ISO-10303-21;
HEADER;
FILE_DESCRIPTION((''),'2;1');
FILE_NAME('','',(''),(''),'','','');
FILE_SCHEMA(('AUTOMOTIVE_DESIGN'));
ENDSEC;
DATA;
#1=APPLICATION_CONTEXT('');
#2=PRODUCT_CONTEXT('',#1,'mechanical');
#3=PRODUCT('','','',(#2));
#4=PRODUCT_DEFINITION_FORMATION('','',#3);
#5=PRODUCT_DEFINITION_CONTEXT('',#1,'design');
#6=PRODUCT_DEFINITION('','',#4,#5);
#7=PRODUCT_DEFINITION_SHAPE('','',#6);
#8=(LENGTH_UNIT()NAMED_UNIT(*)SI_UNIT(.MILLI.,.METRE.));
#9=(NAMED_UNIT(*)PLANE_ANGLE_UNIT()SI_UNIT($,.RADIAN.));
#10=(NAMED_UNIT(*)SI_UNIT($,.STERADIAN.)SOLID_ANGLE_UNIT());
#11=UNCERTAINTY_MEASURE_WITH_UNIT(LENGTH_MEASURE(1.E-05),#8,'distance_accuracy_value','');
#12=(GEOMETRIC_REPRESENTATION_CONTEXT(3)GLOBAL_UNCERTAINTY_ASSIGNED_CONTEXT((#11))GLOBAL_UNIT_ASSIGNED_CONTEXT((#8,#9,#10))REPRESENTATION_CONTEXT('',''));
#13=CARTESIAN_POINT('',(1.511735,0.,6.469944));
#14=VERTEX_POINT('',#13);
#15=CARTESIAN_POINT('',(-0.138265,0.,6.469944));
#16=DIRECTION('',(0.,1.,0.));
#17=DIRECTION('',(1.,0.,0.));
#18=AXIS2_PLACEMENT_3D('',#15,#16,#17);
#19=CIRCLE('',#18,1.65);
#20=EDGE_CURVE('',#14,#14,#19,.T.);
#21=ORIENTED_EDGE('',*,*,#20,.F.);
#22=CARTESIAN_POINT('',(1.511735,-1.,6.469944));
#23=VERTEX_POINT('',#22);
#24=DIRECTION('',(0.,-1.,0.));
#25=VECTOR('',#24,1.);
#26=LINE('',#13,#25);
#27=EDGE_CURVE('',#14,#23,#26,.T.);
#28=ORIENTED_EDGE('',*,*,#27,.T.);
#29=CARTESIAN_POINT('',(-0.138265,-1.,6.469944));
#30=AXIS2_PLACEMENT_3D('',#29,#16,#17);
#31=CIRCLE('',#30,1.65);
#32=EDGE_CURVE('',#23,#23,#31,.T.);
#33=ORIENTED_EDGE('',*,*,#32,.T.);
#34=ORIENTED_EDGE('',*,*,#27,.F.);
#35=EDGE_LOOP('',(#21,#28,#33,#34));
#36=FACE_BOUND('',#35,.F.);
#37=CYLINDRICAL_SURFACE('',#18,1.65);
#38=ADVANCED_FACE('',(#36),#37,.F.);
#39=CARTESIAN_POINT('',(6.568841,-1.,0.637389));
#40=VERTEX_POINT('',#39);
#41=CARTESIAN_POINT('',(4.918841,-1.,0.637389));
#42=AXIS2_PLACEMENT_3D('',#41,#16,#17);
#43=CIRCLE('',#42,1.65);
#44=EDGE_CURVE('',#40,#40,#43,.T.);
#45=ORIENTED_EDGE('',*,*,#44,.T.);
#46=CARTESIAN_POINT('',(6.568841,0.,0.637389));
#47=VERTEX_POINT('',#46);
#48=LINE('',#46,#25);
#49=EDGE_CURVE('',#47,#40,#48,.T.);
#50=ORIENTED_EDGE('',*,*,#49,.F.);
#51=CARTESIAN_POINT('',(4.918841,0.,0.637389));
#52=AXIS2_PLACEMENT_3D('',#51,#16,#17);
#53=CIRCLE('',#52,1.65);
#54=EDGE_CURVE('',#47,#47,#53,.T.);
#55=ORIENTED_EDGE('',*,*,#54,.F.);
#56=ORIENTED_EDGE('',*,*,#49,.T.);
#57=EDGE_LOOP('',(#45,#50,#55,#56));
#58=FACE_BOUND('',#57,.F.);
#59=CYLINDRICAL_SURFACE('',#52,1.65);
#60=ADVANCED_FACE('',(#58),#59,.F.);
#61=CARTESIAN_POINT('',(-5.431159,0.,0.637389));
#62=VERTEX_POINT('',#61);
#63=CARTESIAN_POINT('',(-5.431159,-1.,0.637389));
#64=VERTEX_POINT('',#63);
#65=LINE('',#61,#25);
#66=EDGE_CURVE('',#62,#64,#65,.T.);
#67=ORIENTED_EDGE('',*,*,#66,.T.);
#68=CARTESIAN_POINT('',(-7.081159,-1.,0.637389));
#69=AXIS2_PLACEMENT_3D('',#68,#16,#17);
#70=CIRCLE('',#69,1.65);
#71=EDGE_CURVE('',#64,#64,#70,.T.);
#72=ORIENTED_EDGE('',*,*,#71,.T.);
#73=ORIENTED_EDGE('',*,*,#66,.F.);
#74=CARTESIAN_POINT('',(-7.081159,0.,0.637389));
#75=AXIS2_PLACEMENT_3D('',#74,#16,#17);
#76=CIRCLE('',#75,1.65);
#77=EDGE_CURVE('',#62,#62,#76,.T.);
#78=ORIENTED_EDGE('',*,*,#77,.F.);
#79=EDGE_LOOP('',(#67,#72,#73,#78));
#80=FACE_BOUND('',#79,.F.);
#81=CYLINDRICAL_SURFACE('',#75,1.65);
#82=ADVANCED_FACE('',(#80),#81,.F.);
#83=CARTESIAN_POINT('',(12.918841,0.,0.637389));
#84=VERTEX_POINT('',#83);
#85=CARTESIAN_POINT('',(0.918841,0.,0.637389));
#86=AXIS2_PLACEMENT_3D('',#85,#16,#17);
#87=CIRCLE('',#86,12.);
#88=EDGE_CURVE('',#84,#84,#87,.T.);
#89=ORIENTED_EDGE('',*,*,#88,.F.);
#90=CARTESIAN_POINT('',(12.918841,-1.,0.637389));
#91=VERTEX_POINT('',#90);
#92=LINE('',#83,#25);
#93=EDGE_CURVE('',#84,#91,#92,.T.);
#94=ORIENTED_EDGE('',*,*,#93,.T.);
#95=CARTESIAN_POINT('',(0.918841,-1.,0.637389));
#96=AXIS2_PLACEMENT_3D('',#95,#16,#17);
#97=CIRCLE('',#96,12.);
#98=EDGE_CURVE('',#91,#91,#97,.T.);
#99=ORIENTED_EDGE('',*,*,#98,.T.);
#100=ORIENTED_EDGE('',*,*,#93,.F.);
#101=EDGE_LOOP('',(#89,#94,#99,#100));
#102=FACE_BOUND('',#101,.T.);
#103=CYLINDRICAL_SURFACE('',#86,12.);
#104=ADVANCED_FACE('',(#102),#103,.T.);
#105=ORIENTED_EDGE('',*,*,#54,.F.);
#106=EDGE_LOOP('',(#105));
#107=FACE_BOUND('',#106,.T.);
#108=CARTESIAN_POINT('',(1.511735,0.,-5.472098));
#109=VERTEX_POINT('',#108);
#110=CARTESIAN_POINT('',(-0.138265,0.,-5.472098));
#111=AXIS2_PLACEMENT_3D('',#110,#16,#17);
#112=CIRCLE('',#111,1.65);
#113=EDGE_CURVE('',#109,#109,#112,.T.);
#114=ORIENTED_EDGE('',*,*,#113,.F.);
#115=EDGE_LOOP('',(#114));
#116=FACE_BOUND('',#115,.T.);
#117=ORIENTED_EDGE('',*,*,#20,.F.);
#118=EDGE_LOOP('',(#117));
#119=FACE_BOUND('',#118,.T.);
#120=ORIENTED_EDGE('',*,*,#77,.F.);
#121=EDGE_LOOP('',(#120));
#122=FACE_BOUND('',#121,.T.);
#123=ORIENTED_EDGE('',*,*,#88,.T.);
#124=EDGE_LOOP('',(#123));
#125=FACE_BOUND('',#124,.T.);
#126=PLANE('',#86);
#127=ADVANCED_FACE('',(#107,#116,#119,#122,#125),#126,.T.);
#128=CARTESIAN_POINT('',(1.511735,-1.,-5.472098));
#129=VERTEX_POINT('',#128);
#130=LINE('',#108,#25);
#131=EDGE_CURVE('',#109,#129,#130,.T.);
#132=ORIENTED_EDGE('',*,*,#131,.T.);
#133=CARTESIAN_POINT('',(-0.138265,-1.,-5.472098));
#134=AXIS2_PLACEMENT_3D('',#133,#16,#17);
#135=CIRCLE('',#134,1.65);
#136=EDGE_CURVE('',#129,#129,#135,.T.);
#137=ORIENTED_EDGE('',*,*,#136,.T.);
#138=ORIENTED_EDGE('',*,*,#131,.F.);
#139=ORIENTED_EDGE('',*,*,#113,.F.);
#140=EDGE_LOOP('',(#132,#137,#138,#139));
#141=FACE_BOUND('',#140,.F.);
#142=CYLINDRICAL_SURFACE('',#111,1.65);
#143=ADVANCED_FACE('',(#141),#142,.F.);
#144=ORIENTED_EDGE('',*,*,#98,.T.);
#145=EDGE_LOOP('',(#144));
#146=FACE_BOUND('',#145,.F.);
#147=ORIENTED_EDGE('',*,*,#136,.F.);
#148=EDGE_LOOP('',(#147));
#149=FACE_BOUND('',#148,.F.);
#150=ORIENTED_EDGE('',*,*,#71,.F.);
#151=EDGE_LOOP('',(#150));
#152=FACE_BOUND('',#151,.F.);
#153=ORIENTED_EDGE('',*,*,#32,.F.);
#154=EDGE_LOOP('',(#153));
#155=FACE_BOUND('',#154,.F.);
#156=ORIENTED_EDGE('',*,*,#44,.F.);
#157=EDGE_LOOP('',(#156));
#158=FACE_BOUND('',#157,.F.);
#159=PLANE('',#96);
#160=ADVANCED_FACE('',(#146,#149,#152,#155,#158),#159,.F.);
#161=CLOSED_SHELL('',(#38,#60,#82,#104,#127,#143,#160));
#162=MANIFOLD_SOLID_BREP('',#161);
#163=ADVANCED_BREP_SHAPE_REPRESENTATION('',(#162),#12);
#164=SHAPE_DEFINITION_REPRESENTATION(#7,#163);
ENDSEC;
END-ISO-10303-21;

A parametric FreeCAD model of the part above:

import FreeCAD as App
import Part
import Sketcher
Q = App.Units.Quantity

doc = App.newDocument("Part")
body = doc.addObject("PartDesign::Body", "Body")

sketch1 = body.newObject("Sketcher::SketchObject", "Sketch")
sketch1.AttachmentSupport = (doc.getObject("XZ_Plane"), [""])
sketch1.MapMode = "FlatFace"
sketch1.addGeometry([
    Part.Circle(App.Vector(0.9, 0.6, 0), App.Vector(0, 0, 1), 12),
    Part.Circle(App.Vector(-7.1, 0.6, 0), App.Vector(0, 0, 1), 1.6),
    Part.Circle(App.Vector(-0.1, 6.5, 0), App.Vector(0, 0, 1), 1.6),
    Part.Circle(App.Vector(4.9, 0.6, 0), App.Vector(0, 0, 1), 1.6),
    Part.Circle(App.Vector(-0.1, -5.5, 0), App.Vector(0, 0, 1), 1.6),
], False)
sketch1.addConstraint([
    Sketcher.Constraint("Equal", 1, 2),
    Sketcher.Constraint("Equal", 2, 3),
    Sketcher.Constraint("Equal", 3, 4),
    Sketcher.Constraint("Horizontal", 0, 3, 1, 3),
    Sketcher.Constraint("Horizontal", 1, 3, 3, 3),
    Sketcher.Constraint("Vertical", 2, 3, 4, 3),
    Sketcher.Constraint("Diameter", 0, Q("24 mm")),
    Sketcher.Constraint("Diameter", 1, Q("3.3 mm")),
    Sketcher.Constraint("DistanceX", 1, 3, 0, 3, Q("8 mm")),
    Sketcher.Constraint("DistanceX", 0, 3, 3, 3, Q("4 mm")),
    Sketcher.Constraint("DistanceY", 4, 3, -1, 1, Q("5.472098 mm")),
    Sketcher.Constraint("DistanceX", -1, 1, 0, 3, Q("0.918841 mm")),
    Sketcher.Constraint("DistanceY", -1, 1, 0, 3, Q("0.637389 mm")),
    Sketcher.Constraint("DistanceY", 4, 3, 2, 3, Q("11.942042 mm")),
    Sketcher.Constraint("DistanceX", 2, 3, -1, 1, Q("0.138265 mm")),
])
pad1 = body.newObject("PartDesign::Pad", "Pad")
pad1.Profile = sketch1
pad1.Length = 1

doc.recompute()
